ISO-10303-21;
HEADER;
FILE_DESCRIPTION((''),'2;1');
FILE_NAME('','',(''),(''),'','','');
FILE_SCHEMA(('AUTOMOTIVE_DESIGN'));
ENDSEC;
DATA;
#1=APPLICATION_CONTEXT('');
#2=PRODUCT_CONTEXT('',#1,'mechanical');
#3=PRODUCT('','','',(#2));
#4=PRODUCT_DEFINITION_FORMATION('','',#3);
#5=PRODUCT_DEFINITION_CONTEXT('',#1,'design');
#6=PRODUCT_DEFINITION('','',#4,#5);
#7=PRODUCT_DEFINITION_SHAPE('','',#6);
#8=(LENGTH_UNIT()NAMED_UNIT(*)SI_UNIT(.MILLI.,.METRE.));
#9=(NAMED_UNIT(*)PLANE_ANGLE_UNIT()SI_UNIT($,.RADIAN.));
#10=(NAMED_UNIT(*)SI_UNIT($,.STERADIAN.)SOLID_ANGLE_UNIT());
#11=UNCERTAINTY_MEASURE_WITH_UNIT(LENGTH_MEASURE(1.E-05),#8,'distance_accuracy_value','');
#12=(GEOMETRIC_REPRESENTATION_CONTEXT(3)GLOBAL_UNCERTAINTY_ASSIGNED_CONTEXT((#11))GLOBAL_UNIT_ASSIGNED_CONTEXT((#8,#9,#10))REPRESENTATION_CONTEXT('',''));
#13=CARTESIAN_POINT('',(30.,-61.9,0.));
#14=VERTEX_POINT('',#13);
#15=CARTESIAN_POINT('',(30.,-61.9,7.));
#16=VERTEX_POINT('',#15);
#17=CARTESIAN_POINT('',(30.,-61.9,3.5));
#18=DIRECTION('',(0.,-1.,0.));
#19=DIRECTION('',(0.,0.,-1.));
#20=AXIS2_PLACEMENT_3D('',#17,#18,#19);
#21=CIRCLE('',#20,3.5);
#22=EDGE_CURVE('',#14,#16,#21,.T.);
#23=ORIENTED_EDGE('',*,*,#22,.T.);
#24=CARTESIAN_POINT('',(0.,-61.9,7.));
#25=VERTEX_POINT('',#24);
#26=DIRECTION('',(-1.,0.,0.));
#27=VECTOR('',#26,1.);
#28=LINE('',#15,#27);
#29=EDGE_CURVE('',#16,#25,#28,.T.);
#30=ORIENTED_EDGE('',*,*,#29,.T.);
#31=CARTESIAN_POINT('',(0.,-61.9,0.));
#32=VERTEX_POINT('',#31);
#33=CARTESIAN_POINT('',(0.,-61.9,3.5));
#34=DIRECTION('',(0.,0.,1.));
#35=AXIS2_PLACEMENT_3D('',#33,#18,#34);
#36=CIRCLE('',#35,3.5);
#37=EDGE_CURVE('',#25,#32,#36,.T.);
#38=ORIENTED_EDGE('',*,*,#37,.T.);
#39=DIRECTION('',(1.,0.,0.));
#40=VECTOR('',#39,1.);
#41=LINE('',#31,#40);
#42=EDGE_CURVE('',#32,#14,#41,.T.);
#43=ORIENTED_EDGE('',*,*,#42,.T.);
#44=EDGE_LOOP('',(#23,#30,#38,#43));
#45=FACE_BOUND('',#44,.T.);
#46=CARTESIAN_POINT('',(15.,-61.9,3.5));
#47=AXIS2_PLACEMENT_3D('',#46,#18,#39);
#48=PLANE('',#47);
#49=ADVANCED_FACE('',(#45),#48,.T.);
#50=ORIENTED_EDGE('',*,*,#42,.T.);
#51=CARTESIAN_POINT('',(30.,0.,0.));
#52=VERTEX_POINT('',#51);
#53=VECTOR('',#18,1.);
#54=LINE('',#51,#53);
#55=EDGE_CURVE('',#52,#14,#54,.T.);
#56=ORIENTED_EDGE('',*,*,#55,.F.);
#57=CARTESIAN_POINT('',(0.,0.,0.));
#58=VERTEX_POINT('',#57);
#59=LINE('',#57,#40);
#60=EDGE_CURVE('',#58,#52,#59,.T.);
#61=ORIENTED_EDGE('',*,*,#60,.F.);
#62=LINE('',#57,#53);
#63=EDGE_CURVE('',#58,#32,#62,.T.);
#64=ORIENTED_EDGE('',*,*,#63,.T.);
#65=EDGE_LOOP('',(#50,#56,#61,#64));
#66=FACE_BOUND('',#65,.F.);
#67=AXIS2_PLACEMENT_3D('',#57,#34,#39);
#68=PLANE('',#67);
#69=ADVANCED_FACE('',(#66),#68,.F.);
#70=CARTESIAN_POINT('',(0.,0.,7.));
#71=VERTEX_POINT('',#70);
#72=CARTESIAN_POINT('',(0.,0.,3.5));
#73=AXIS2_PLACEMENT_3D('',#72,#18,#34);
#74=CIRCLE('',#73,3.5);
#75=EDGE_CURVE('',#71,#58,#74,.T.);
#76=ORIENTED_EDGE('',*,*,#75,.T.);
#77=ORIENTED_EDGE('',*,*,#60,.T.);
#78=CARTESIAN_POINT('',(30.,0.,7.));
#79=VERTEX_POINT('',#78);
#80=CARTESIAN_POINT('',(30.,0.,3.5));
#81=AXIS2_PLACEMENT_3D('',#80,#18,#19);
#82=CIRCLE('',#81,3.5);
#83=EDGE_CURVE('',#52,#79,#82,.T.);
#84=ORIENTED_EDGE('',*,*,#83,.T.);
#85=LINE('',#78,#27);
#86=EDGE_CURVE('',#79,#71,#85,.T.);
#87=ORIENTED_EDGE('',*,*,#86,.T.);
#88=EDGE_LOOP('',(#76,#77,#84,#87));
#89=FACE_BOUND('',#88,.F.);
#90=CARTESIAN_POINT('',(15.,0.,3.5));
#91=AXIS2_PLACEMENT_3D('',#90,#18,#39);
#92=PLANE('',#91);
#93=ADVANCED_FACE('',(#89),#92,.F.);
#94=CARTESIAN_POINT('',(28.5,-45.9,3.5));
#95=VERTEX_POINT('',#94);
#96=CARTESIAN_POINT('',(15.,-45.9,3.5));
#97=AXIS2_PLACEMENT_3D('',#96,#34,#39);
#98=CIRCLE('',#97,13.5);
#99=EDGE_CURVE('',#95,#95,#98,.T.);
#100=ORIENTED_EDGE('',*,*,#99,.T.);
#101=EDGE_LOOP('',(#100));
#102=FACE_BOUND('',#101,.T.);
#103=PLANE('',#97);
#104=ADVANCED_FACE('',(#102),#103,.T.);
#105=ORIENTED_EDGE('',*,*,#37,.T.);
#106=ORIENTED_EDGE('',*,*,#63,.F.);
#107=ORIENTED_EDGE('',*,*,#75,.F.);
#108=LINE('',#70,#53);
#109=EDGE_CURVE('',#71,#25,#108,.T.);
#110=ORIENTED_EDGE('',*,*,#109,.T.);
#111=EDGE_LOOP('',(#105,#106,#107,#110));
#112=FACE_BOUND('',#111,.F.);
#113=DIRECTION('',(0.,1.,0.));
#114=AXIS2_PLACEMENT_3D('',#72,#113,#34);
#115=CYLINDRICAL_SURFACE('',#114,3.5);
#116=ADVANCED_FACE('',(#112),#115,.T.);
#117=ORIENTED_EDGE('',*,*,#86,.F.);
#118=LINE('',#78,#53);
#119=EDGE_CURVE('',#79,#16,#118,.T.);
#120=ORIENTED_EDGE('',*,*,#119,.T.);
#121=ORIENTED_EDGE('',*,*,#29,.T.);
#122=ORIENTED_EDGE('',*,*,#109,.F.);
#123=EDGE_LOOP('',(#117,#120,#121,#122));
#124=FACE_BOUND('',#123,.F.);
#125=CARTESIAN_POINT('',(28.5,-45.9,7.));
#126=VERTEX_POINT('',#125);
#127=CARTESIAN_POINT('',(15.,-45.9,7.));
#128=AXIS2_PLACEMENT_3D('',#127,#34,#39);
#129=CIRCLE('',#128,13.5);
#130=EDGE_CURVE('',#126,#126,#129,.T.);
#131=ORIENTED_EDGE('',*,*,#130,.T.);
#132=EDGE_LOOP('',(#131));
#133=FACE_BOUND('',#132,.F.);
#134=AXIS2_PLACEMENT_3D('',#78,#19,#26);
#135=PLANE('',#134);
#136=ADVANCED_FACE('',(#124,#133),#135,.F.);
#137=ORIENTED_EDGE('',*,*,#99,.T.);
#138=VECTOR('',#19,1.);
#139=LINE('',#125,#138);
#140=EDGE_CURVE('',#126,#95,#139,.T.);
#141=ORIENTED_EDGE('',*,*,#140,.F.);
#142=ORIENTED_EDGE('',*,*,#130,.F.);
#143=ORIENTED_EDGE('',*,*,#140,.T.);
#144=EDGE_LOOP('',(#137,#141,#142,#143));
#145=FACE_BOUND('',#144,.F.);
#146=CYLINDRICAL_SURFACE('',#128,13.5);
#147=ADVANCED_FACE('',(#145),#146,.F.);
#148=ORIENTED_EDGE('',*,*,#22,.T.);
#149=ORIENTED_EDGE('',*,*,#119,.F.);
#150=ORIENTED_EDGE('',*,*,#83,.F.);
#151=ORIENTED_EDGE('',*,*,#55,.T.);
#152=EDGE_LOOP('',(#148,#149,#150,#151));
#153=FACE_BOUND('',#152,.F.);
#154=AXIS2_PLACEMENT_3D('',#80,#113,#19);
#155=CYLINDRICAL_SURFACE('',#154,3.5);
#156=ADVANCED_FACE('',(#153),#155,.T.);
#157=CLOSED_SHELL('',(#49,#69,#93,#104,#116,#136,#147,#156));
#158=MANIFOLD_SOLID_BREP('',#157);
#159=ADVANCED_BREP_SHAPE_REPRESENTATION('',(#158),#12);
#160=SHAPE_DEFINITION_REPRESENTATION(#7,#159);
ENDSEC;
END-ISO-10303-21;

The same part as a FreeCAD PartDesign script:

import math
import FreeCAD as App
import Part
import Sketcher

doc = App.newDocument("Part")
params = doc.addObject("Spreadsheet::Sheet", "Params")
for row, (alias, value) in enumerate([
    ("sketch1_radius", "3.5 mm"),
    ("sketch1_width", "30 mm"),
    ("pad1_length", "61.9 mm"),
    ("sketch2_diameter", "27 mm"),
    ("pocket1_length", "3.5 mm"),
], start=1):
    params.set(f"A{row}", alias)
    params.set(f"B{row}", "=" + value)
    params.setAlias(f"B{row}", alias)

body = doc.addObject("PartDesign::Body", "Body")

# Sketch on XZ plane
sketch1 = body.newObject("Sketcher::SketchObject", "Sketch")
sketch1.AttachmentSupport = (doc.getObject("XZ_Plane"), [""])
sketch1.MapMode = "FlatFace"
sketch1.addGeometry(Part.ArcOfCircle(Part.Circle(App.Vector(0, 3.5, 0), App.Vector(0, 0, 1), 3.5), math.radians(90), math.radians(270)), False)
sketch1.addGeometry(Part.LineSegment(App.Vector(0, 0, 0), App.Vector(30, 0, 0)), False)
sketch1.addGeometry(Part.ArcOfCircle(Part.Circle(App.Vector(30, 3.5, 0), App.Vector(0, 0, 1), 3.5), math.radians(-90), math.radians(90)), False)
sketch1.addGeometry(Part.LineSegment(App.Vector(30, 7, 0), App.Vector(0, 7, 0)), False)
sketch1.addConstraint(Sketcher.Constraint("Tangent", 0, 2, 1, 1))
sketch1.addConstraint(Sketcher.Constraint("Tangent", 1, 2, 2, 1))
sketch1.addConstraint(Sketcher.Constraint("Tangent", 2, 2, 3, 1))
sketch1.addConstraint(Sketcher.Constraint("Tangent", 3, 2, 0, 1))
sketch1.addConstraint(Sketcher.Constraint("Horizontal", 1))
sketch1.addConstraint(Sketcher.Constraint("Horizontal", 3))
sketch1.addConstraint(Sketcher.Constraint("Coincident", 0, 2, -1, 1))
sketch1.addConstraint(Sketcher.Constraint("Radius", 0, 3.5))
sketch1.addConstraint(Sketcher.Constraint("DistanceX", 1, 1, 1, 2, 30.0))
sketch1.setExpression("Constraints[7]", "Params.sketch1_radius")
sketch1.setExpression("Constraints[8]", "Params.sketch1_width")
pad1 = body.newObject("PartDesign::Pad", "Pad")
pad1.Profile = sketch1
pad1.setExpression("Length", "Params.pad1_length")

# Sketch on XY plane
sketch2 = body.newObject("Sketcher::SketchObject", "Sketch001")
sketch2.AttachmentSupport = (doc.getObject("XY_Plane"), [""])
sketch2.MapMode = "FlatFace"
sketch2.AttachmentOffset = App.Placement(App.Vector(0, 0, 7), App.Rotation())
sketch2.addGeometry(Part.Circle(App.Vector(15, -46, 0), App.Vector(0, 0, 1), 14), False)
sketch2.addConstraint(Sketcher.Constraint("Diameter", 0, 27.0))
sketch2.addConstraint(Sketcher.Constraint("DistanceX", -1, 1, 0, 3, 15.0))
sketch2.addConstraint(Sketcher.Constraint("DistanceY", 0, 3, -1, 1, 45.9))
sketch2.setExpression("Constraints[0]", "Params.sketch2_diameter")
pocket1 = body.newObject("PartDesign::Pocket", "Pocket")
pocket1.Profile = sketch2
pocket1.setExpression("Length", "Params.pocket1_length")

doc.recompute()
